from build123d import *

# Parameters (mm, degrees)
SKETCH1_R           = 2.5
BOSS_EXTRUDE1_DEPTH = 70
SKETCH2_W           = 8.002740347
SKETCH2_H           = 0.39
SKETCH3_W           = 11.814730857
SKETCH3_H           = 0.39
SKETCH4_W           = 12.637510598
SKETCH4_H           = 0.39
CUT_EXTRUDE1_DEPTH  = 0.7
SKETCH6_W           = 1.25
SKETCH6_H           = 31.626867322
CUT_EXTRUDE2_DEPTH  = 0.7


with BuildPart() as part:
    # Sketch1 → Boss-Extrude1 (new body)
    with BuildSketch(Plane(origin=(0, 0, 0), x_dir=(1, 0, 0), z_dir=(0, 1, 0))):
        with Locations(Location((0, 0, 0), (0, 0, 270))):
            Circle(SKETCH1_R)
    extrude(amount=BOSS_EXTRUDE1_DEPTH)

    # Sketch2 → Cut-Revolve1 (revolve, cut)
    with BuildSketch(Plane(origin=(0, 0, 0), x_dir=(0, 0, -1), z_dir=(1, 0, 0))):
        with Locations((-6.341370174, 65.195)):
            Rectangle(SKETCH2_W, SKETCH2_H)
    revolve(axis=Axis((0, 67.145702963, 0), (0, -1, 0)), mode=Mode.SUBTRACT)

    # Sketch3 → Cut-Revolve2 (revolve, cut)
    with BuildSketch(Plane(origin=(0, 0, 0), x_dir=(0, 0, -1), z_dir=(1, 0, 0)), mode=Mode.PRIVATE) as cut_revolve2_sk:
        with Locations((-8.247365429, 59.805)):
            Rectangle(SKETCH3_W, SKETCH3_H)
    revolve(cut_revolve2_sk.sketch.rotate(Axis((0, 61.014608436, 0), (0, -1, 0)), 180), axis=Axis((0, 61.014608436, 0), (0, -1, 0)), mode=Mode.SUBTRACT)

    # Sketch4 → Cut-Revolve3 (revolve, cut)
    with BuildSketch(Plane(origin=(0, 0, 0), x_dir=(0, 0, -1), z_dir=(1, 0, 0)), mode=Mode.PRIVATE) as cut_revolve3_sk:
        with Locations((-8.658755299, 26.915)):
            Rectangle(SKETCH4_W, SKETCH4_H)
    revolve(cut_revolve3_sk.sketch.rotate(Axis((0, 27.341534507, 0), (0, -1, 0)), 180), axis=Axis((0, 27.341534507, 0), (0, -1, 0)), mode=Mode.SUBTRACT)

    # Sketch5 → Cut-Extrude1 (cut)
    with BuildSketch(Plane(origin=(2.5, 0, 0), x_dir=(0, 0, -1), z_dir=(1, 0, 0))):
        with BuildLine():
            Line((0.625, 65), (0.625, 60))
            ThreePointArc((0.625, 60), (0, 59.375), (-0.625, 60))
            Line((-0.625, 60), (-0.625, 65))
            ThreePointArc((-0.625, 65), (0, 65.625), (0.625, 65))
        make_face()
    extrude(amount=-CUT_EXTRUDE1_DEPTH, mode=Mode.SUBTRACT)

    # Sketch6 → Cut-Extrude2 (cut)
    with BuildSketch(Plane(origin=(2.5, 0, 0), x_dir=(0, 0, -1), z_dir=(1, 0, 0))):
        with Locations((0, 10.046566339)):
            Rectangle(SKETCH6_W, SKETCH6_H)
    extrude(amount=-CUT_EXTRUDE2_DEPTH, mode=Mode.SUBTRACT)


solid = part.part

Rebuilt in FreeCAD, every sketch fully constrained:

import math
import FreeCAD as App
import Part
import Sketcher
Q = App.Units.Quantity


def add_polygon(sketch, points):
    """Adds a closed chain of lines whose ends are joined by coincident constraints."""
    first, n = sketch.GeometryCount, len(points)
    for a, b in zip(points, points[1:] + points[:1]):
        sketch.addGeometry(Part.LineSegment(App.Vector(*a, 0), App.Vector(*b, 0)), False)
    for i in range(n):
        sketch.addConstraint(Sketcher.Constraint("Coincident", first + i, 2, first + (i + 1) % n, 1))

doc = App.newDocument("Part")
body = doc.addObject("PartDesign::Body", "Body")

sketch1 = doc.addObject("Sketcher::SketchObject", "Sketch")
body.addObject(sketch1)
sketch1.AttachmentSupport = (doc.XZ_Plane, [""])
sketch1.MapMode = "FlatFace"
sketch1.addGeometry(Part.Circle(App.Vector(0, 0, 0), App.Vector(0, 0, 1), 2.5), False)
sketch1.addConstraint(Sketcher.Constraint("Coincident", 0, 3, -1, 1))
sketch1.addConstraint(Sketcher.Constraint("Diameter", 0, Q("5 mm")))
pad1 = doc.addObject("PartDesign::Pad", "Pad")
body.addObject(pad1)
pad1.Profile = sketch1
pad1.Length = 70
pad1.Reversed = True

sketch2 = doc.addObject("Sketcher::SketchObject", "Sketch001")
body.addObject(sketch2)
sketch2.AttachmentSupport = (doc.YZ_Plane, [""])
sketch2.MapMode = "FlatFace"
add_polygon(sketch2, [(65.39, 10.34), (65, 10.34), (65, 2.34), (65.39, 2.34)])
sketch2.addConstraint(Sketcher.Constraint("Horizontal", 0))
sketch2.addConstraint(Sketcher.Constraint("Vertical", 1))
sketch2.addConstraint(Sketcher.Constraint("Horizontal", 2))
sketch2.addConstraint(Sketcher.Constraint("Vertical", 3))
sketch2.addConstraint(Sketcher.Constraint("DistanceX", -1, 1, 0, 2, Q("65 mm")))
sketch2.addConstraint(Sketcher.Constraint("DistanceX", 0, 2, 0, 1, Q("0.39 mm")))
sketch2.addConstraint(Sketcher.Constraint("DistanceY", -1, 1, 1, 2, Q("2.34 mm")))
sketch2.addConstraint(Sketcher.Constraint("DistanceY", 1, 2, 1, 1, Q("8.00274 mm")))
groove = doc.addObject("PartDesign::Groove", "Groove")
body.addObject(groove)
groove.Profile = sketch2
groove.ReferenceAxis = (sketch2, ["H_Axis"])
groove.Angle = 360

sketch3 = doc.addObject("Sketcher::SketchObject", "Sketch002")
body.addObject(sketch3)
sketch3.AttachmentSupport = (doc.YZ_Plane, [""])
sketch3.MapMode = "FlatFace"
add_polygon(sketch3, [(60, 14.15), (59.61, 14.15), (59.61, 2.34), (60, 2.34)])
sketch3.addConstraint(Sketcher.Constraint("Horizontal", 0))
sketch3.addConstraint(Sketcher.Constraint("Vertical", 1))
sketch3.addConstraint(Sketcher.Constraint("Horizontal", 2))
sketch3.addConstraint(Sketcher.Constraint("Vertical", 3))
sketch3.addConstraint(Sketcher.Constraint("DistanceX", -1, 1, 2, 2, Q("60 mm")))
sketch3.addConstraint(Sketcher.Constraint("DistanceX", 0, 2, 0, 1, Q("0.39 mm")))
sketch3.addConstraint(Sketcher.Constraint("DistanceY", -1, 1, 1, 2, Q("2.34 mm")))
sketch3.addConstraint(Sketcher.Constraint("DistanceY", 1, 2, 1, 1, Q("11.814731 mm")))
groove2 = doc.addObject("PartDesign::Groove", "Groove001")
body.addObject(groove2)
groove2.Profile = sketch3
groove2.ReferenceAxis = (sketch3, ["H_Axis"])
groove2.Angle = 360

sketch4 = doc.addObject("Sketcher::SketchObject", "Sketch003")
body.addObject(sketch4)
sketch4.AttachmentSupport = (doc.YZ_Plane, [""])
sketch4.MapMode = "FlatFace"
add_polygon(sketch4, [(27.11, 14.98), (26.72, 14.98), (26.72, 2.34), (27.11, 2.34)])
sketch4.addConstraint(Sketcher.Constraint("Horizontal", 0))
sketch4.addConstraint(Sketcher.Constraint("Vertical", 1))
sketch4.addConstraint(Sketcher.Constraint("Horizontal", 2))
sketch4.addConstraint(Sketcher.Constraint("Vertical", 3))
sketch4.addConstraint(Sketcher.Constraint("DistanceX", 0, 2, 0, 1, Q("0.39 mm")))
sketch4.addConstraint(Sketcher.Constraint("DistanceX", -1, 1, 0, 2, Q("26.72 mm")))
sketch4.addConstraint(Sketcher.Constraint("DistanceY", -1, 1, 1, 2, Q("2.34 mm")))
sketch4.addConstraint(Sketcher.Constraint("DistanceY", 1, 2, 1, 1, Q("12.637511 mm")))
groove3 = doc.addObject("PartDesign::Groove", "Groove002")
body.addObject(groove3)
groove3.Profile = sketch4
groove3.ReferenceAxis = (sketch4, ["H_Axis"])
groove3.Angle = 360

sketch5 = doc.addObject("Sketcher::SketchObject", "Sketch004")
body.addObject(sketch5)
sketch5.AttachmentSupport = (doc.YZ_Plane, [""])
sketch5.MapMode = "FlatFace"
sketch5.AttachmentOffset = App.Placement(App.Vector(0, 0, 2.5), App.Rotation())
sketch5.addGeometry(Part.LineSegment(App.Vector(60, -0.6, 0), App.Vector(65, -0.6, 0)), False)
sketch5.addGeometry(Part.ArcOfCircle(Part.Circle(App.Vector(65, 0, 0), App.Vector(0, 0, 1), 0.6), math.radians(-90), math.radians(90)), False)
sketch5.addGeometry(Part.LineSegment(App.Vector(65, 0.6, 0), App.Vector(60, 0.6, 0)), False)
sketch5.addGeometry(Part.ArcOfCircle(Part.Circle(App.Vector(60, 0, 0), App.Vector(0, 0, 1), 0.6), math.radians(90), math.radians(270)), False)
sketch5.addConstraint(Sketcher.Constraint("Tangent", 0, 2, 1, 1))
sketch5.addConstraint(Sketcher.Constraint("Tangent", 1, 2, 2, 1))
sketch5.addConstraint(Sketcher.Constraint("Tangent", 2, 2, 3, 1))
sketch5.addConstraint(Sketcher.Constraint("Tangent", 3, 2, 0, 1))
sketch5.addConstraint(Sketcher.Constraint("Horizontal", 0))
sketch5.addConstraint(Sketcher.Constraint("Horizontal", 2))
sketch5.addConstraint(Sketcher.Constraint("PointOnObject", 1, 3, -1))
sketch5.addConstraint(Sketcher.Constraint("DistanceX", 0, 1, 0, 2, Q("5 mm")))
sketch5.addConstraint(Sketcher.Constraint("DistanceX", -1, 1, 1, 3, Q("65 mm")))
sketch5.addConstraint(Sketcher.Constraint("Radius", 1, Q("0.625 mm")))
pocket1 = doc.addObject("PartDesign::Pocket", "Pocket")
body.addObject(pocket1)
pocket1.Profile = sketch5
pocket1.Length = 0.7

sketch6 = doc.addObject("Sketcher::SketchObject", "Sketch005")
body.addObject(sketch6)
sketch6.AttachmentSupport = (doc.YZ_Plane, [""])
sketch6.MapMode = "FlatFace"
sketch6.AttachmentOffset = App.Placement(App.Vector(0, 0, 2.5), App.Rotation())
add_polygon(sketch6, [(25.9, 0.6), (-5.8, 0.6), (-5.8, -0.6), (25.9, -0.6)])
sketch6.addConstraint(Sketcher.Constraint("Horizontal", 0))
sketch6.addConstraint(Sketcher.Constraint("Vertical", 1))
sketch6.addConstraint(Sketcher.Constraint("Horizontal", 2))
sketch6.addConstraint(Sketcher.Constraint("Vertical", 3))
sketch6.addConstraint(Sketcher.Constraint("DistanceY", 1, 2, 1, 1, Q("1.25 mm")))
sketch6.addConstraint(Sketcher.Constraint("DistanceX", -1, 1, 2, 2, Q("25.86 mm")))
sketch6.addConstraint(Sketcher.Constraint("DistanceY", -1, 1, 0, 2, Q("0.625 mm")))
sketch6.addConstraint(Sketcher.Constraint("DistanceX", 0, 2, 0, 1, Q("31.626867 mm")))
pocket2 = doc.addObject("PartDesign::Pocket", "Pocket001")
body.addObject(pocket2)
pocket2.Profile = sketch6
pocket2.Length = 0.7

doc.recompute()
